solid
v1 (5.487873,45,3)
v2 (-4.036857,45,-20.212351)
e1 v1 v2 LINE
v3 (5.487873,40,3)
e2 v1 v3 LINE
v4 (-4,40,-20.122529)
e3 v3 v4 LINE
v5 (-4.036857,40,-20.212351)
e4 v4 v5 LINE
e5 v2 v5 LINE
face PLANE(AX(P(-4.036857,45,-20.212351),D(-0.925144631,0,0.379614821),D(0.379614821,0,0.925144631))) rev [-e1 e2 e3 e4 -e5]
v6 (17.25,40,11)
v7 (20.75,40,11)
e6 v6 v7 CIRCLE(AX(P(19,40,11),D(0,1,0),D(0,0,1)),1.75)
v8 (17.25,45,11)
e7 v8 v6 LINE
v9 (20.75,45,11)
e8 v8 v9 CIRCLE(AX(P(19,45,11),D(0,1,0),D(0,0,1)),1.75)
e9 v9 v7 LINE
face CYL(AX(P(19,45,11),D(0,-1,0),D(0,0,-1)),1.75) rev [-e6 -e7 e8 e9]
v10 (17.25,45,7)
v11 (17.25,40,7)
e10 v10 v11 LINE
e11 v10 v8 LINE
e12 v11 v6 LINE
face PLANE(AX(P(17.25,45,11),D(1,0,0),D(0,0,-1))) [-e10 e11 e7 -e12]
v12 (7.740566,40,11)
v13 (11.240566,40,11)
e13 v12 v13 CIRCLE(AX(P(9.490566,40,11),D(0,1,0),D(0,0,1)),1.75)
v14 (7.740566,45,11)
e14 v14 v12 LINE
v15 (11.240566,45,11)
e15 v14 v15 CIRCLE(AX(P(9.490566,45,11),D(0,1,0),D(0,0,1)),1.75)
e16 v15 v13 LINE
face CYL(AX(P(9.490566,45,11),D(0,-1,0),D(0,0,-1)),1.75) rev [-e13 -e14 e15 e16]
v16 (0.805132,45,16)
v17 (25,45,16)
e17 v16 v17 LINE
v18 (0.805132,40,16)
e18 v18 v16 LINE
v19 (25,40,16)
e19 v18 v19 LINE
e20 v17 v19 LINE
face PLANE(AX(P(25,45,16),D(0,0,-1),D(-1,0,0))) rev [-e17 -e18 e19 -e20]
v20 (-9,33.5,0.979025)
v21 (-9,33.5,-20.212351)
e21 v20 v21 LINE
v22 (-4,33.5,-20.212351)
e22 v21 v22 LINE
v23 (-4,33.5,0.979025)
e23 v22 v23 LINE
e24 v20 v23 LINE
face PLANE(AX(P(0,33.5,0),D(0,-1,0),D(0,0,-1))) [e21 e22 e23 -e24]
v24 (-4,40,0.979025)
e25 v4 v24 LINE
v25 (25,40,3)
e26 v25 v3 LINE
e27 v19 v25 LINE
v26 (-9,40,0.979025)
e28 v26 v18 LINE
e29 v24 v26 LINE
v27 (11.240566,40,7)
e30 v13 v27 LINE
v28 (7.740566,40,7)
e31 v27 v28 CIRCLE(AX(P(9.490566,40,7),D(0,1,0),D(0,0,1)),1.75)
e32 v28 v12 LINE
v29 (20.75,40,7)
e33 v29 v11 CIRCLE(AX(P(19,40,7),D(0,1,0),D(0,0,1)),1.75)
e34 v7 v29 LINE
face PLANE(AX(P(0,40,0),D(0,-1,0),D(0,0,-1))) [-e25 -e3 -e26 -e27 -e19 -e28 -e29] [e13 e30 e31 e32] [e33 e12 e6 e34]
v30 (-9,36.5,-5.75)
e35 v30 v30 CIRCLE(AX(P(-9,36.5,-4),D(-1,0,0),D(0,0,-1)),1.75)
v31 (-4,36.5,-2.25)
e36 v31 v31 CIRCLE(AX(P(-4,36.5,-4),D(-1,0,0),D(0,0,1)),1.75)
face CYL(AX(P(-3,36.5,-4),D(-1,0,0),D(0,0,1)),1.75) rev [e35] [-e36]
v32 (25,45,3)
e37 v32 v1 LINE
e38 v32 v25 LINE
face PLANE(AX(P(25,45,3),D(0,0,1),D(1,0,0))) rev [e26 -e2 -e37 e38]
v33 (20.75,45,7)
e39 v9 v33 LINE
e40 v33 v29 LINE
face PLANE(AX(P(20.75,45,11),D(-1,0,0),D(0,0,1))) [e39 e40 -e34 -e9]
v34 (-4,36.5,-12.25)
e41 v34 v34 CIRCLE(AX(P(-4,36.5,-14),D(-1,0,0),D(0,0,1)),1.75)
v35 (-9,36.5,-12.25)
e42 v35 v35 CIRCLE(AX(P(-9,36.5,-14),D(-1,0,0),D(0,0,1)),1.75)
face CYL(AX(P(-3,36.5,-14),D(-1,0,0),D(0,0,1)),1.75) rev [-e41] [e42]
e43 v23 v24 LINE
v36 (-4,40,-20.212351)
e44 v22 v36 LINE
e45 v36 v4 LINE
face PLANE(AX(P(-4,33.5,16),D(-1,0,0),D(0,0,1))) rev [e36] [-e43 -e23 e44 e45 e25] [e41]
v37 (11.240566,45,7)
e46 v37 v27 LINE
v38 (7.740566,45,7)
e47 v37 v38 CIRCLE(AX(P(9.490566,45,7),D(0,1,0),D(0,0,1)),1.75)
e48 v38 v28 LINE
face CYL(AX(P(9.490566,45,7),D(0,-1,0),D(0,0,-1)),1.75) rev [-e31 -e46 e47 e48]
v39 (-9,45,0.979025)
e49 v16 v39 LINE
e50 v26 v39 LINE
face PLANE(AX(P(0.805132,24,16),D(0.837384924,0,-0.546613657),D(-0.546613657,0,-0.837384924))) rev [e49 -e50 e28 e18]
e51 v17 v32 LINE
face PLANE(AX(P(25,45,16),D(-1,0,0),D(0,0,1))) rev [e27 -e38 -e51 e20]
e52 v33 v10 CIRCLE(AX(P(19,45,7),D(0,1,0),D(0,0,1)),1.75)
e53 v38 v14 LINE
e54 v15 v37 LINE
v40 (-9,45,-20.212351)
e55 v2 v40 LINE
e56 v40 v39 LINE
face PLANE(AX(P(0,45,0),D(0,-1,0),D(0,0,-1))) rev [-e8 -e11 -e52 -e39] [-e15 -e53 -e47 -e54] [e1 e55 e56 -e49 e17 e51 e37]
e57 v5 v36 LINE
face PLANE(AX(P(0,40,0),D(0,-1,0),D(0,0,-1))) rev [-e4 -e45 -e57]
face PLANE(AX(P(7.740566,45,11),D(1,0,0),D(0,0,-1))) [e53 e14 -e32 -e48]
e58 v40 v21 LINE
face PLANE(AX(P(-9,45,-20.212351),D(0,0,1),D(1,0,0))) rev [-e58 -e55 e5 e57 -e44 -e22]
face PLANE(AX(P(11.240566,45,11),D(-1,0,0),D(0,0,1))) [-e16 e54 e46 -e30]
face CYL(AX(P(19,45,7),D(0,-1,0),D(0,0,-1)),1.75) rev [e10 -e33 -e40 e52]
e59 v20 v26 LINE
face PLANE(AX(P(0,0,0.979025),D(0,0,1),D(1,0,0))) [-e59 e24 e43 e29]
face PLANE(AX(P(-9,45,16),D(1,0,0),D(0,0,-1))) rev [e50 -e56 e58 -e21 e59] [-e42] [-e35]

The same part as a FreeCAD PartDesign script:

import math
import FreeCAD as App
import Part
import Sketcher
from FreeCAD import Vector
Q = App.Units.Quantity

doc = App.newDocument("Part")
params = doc.addObject("Spreadsheet::Sheet", "Params")
for row, (alias, value) in enumerate([
    ("sketch1_width", "34 mm"),
    ("sketch1_height", "13 mm"),
    ("sketch1_height2", "4 mm"),
    ("sketch1_radius", "1.75 mm"),
    ("pad1_length", "5 mm"),
    ("sketch2_width", "5 mm"),
    ("pad2_length", "6.5 mm"),
    ("sketch3_diameter", "3.5 mm"),
    ("pocket1_length", "6 mm"),
    ("pocket2_length", "21 mm"),
    ("sketch5_width", "5 mm"),
    ("sketch5_height", "6.5 mm"),
    ("pocket3_length", "21 mm"),
], start=1):
    params.set(f"A{row}", alias)
    params.set(f"B{row}", "=" + value)
    params.setAlias(f"B{row}", alias)

body = doc.addObject("PartDesign::Body", "Body")

# Sketch on XZ plane
sketch1 = body.newObject("Sketcher::SketchObject", "Sketch")
sketch1.AttachmentSupport = (doc.getObject("XZ_Plane"), [""])
sketch1.MapMode = "FlatFace"
sketch1.AttachmentOffset = App.Placement(Vector(0, 0, -40), App.Rotation())
sketch1.addGeometry([
    Part.LineSegment(Vector(-9, 16, 0), Vector(25, 16, 0)),  # 0
    Part.LineSegment(Vector(25, 16, 0), Vector(25, 3, 0)),  # 1
    Part.LineSegment(Vector(25, 3, 0), Vector(5.5, 3, 0)),  # 2
    Part.LineSegment(Vector(5.5, 3, 0), Vector(-4, -20.2, 0)),  # 3
    Part.LineSegment(Vector(-4, -20.2, 0), Vector(-9, -20.2, 0)),  # 4
    Part.LineSegment(Vector(-9, -20.2, 0), Vector(-9, 16, 0)),  # 5
    Part.LineSegment(Vector(17.2, 11, 0), Vector(17.2, 7, 0)),  # 6
    Part.ArcOfCircle(Part.Circle(Vector(19, 7, 0), Vector(0, 0, 1), 1.8), math.radians(180), math.radians(360)),  # 7
    Part.LineSegment(Vector(20.8, 7, 0), Vector(20.8, 11, 0)),  # 8
    Part.ArcOfCircle(Part.Circle(Vector(19, 11, 0), Vector(0, 0, 1), 1.8), math.radians(0), math.radians(180)),  # 9
    Part.LineSegment(Vector(7.7, 11, 0), Vector(7.7, 7, 0)),  # 10
    Part.ArcOfCircle(Part.Circle(Vector(9.5, 7, 0), Vector(0, 0, 1), 1.8), math.radians(180), math.radians(360)),  # 11
    Part.LineSegment(Vector(11.2, 7, 0), Vector(11.2, 11, 0)),  # 12
    Part.ArcOfCircle(Part.Circle(Vector(9.5, 11, 0), Vector(0, 0, 1), 1.8), math.radians(0), math.radians(180)),  # 13
], False)
sketch1.addConstraint([
    Sketcher.Constraint("Coincident", 0, 2, 1, 1),
    Sketcher.Constraint("Coincident", 1, 2, 2, 1),
    Sketcher.Constraint("Coincident", 2, 2, 3, 1),
    Sketcher.Constraint("Coincident", 3, 2, 4, 1),
    Sketcher.Constraint("Coincident", 4, 2, 5, 1),
    Sketcher.Constraint("Coincident", 5, 2, 0, 1),
    Sketcher.Constraint("Tangent", 6, 2, 7, 1),
    Sketcher.Constraint("Tangent", 7, 2, 8, 1),
    Sketcher.Constraint("Tangent", 8, 2, 9, 1),
    Sketcher.Constraint("Tangent", 9, 2, 6, 1),
    Sketcher.Constraint("Tangent", 10, 2, 11, 1),
    Sketcher.Constraint("Tangent", 11, 2, 12, 1),
    Sketcher.Constraint("Tangent", 12, 2, 13, 1),
    Sketcher.Constraint("Tangent", 13, 2, 10, 1),
    Sketcher.Constraint("Horizontal", 0),
    Sketcher.Constraint("Vertical", 1),
    Sketcher.Constraint("Horizontal", 2),
    Sketcher.Constraint("Horizontal", 4),
    Sketcher.Constraint("Vertical", 5),
    Sketcher.Constraint("Vertical", 6),
    Sketcher.Constraint("Vertical", 8),
    Sketcher.Constraint("Vertical", 10),
    Sketcher.Constraint("Vertical", 12),
    Sketcher.Constraint("Equal", 9, 11),
    Sketcher.Constraint("Horizontal", 7, 3, 11, 3),
    Sketcher.Constraint("Horizontal", 9, 3, 13, 3),
    Sketcher.Constraint("DistanceX", 0, 1, 0, 2, Q("34 mm")),
    Sketcher.Constraint("DistanceY", 1, 2, 1, 1, Q("13 mm")),
    Sketcher.Constraint("DistanceY", 6, 2, 6, 1, Q("4 mm")),
    Sketcher.Constraint("Radius", 7, Q("1.75 mm")),
    Sketcher.Constraint("DistanceX", -1, 1, 7, 3, Q("19 mm")),
    Sketcher.Constraint("DistanceY", -1, 1, 7, 3, Q("7 mm")),
    Sketcher.Constraint("DistanceX", -1, 1, 0, 2, Q("25 mm")),
    Sketcher.Constraint("DistanceY", -1, 1, 0, 2, Q("16 mm")),
    Sketcher.Constraint("DistanceY", 5, 1, 5, 2, Q("36.212351 mm")),
    Sketcher.Constraint("Distance", 3, Q("25.090511 mm")),
    Sketcher.Constraint("DistanceX", 2, 2, 2, 1, Q("19.512127 mm")),
    Sketcher.Constraint("DistanceX", -1, 1, 11, 3, Q("9.490566 mm")),
])
sketch1.setExpression("Constraints[26]", "Params.sketch1_width")
sketch1.setExpression("Constraints[27]", "Params.sketch1_height")
sketch1.setExpression("Constraints[28]", "Params.sketch1_height2")
sketch1.setExpression("Constraints[29]", "Params.sketch1_radius")
pad1 = body.newObject("PartDesign::Pad", "Pad")
pad1.Profile = sketch1
pad1.setExpression("Length", "Params.pad1_length")
pad1.Reversed = True

# Sketch on XZ plane
sketch2 = body.newObject("Sketcher::SketchObject", "Sketch001")
sketch2.AttachmentSupport = (doc.getObject("XZ_Plane"), [""])
sketch2.MapMode = "FlatFace"
sketch2.AttachmentOffset = App.Placement(Vector(0, 0, -40), App.Rotation())
sketch2.addGeometry([
    Part.LineSegment(Vector(-9, 16, 0), Vector(-9, -20, 0)),
    Part.LineSegment(Vector(-9, -20, 0), Vector(-4, -20, 0)),
    Part.LineSegment(Vector(-4, -20, 0), Vector(-4, 16, 0)),
    Part.LineSegment(Vector(-4, 16, 0), Vector(-9, 16, 0)),
], False)
sketch2.addConstraint([
    Sketcher.Constraint("Coincident", 0, 2, 1, 1),
    Sketcher.Constraint("Coincident", 1, 2, 2, 1),
    Sketcher.Constraint("Coincident", 2, 2, 3, 1),
    Sketcher.Constraint("Coincident", 3, 2, 0, 1),
    Sketcher.Constraint("Vertical", 0),
    Sketcher.Constraint("Horizontal", 1),
    Sketcher.Constraint("Vertical", 2),
    Sketcher.Constraint("Horizontal", 3),
    Sketcher.Constraint("DistanceX", 1, 1, 1, 2, Q("5 mm")),
    Sketcher.Constraint("DistanceX", 0, 2, -1, 1, Q("9 mm")),
    Sketcher.Constraint("DistanceY", -1, 1, 2, 2, Q("16 mm")),
    Sketcher.Constraint("DistanceY", 0, 2, 0, 1, Q("36.212351 mm")),
])
sketch2.setExpression("Constraints[8]", "Params.sketch2_width")
pad2 = body.newObject("PartDesign::Pad", "Pad001")
pad2.Profile = sketch2
pad2.setExpression("Length", "Params.pad2_length")

# Sketch on YZ plane
sketch3 = body.newObject("Sketcher::SketchObject", "Sketch002")
sketch3.AttachmentSupport = (doc.getObject("YZ_Plane"), [""])
sketch3.MapMode = "FlatFace"
sketch3.AttachmentOffset = App.Placement(Vector(0, 0, -9), App.Rotation())
sketch3.addGeometry([
    Part.Circle(Vector(36.5, -14, 0), Vector(0, 0, 1), 1.8),
    Part.Circle(Vector(36.5, -4, 0), Vector(0, 0, 1), 1.8),
], False)
sketch3.addConstraint([
    Sketcher.Constraint("Equal", 0, 1),
    Sketcher.Constraint("Vertical", 0, 3, 1, 3),
    Sketcher.Constraint("Diameter", 0, Q("3.5 mm")),
    Sketcher.Constraint("DistanceY", 0, 3, -1, 1, Q("14 mm")),
    Sketcher.Constraint("DistanceY", 1, 3, -1, 1, Q("4 mm")),
    Sketcher.Constraint("DistanceX", -1, 1, 0, 3, Q("36.5 mm")),
])
sketch3.setExpression("Constraints[2]", "Params.sketch3_diameter")
pocket1 = body.newObject("PartDesign::Pocket", "Pocket")
pocket1.Profile = sketch3
pocket1.setExpression("Length", "Params.pocket1_length")
pocket1.Reversed = True

# Sketch on XZ plane
sketch4 = body.newObject("Sketcher::SketchObject", "Sketch003")
sketch4.AttachmentSupport = (doc.getObject("XZ_Plane"), [""])
sketch4.MapMode = "FlatFace"
sketch4.AttachmentOffset = App.Placement(Vector(0, 0, -45), App.Rotation())
sketch4.addGeometry([
    Part.LineSegment(Vector(1, 16, 0), Vector(-9, 1, 0)),
    Part.LineSegment(Vector(-9, 1, 0), Vector(-9, 16, 0)),
    Part.LineSegment(Vector(-9, 16, 0), Vector(1, 16, 0)),
], False)
sketch4.addConstraint([
    Sketcher.Constraint("Coincident", 0, 2, 1, 1),
    Sketcher.Constraint("Coincident", 1, 2, 2, 1),
    Sketcher.Constraint("Coincident", 2, 2, 0, 1),
    Sketcher.Constraint("Vertical", 1),
    Sketcher.Constraint("Horizontal", 2),
    Sketcher.Constraint("DistanceX", 0, 2, -1, 1, Q("9 mm")),
    Sketcher.Constraint("DistanceY", -1, 1, 1, 2, Q("16 mm")),
    Sketcher.Constraint("DistanceX", 2, 1, 2, 2, Q("9.805132 mm")),
    Sketcher.Constraint("DistanceY", 1, 1, 1, 2, Q("15.020975 mm")),
])
pocket2 = body.newObject("PartDesign::Pocket", "Pocket001")
pocket2.Profile = sketch4
pocket2.setExpression("Length", "Params.pocket2_length")
pocket2.Reversed = True

# Sketch on XY plane
sketch5 = body.newObject("Sketcher::SketchObject", "Sketch004")
sketch5.AttachmentSupport = (doc.getObject("XY_Plane"), [""])
sketch5.MapMode = "FlatFace"
sketch5.AttachmentOffset = App.Placement(Vector(0, 0, 0.979025), App.Rotation())
sketch5.addGeometry([
    Part.LineSegment(Vector(-9, 40, 0), Vector(-9, 34, 0)),
    Part.LineSegment(Vector(-9, 34, 0), Vector(-4, 34, 0)),
    Part.LineSegment(Vector(-4, 34, 0), Vector(-4, 40, 0)),
    Part.LineSegment(Vector(-4, 40, 0), Vector(-9, 40, 0)),
], False)
sketch5.addConstraint([
    Sketcher.Constraint("Coincident", 0, 2, 1, 1),
    Sketcher.Constraint("Coincident", 1, 2, 2, 1),
    Sketcher.Constraint("Coincident", 2, 2, 3, 1),
    Sketcher.Constraint("Coincident", 3, 2, 0, 1),
    Sketcher.Constraint("Vertical", 0),
    Sketcher.Constraint("Horizontal", 1),
    Sketcher.Constraint("Vertical", 2),
    Sketcher.Constraint("Horizontal", 3),
    Sketcher.Constraint("DistanceX", 1, 1, 1, 2, Q("5 mm")),
    Sketcher.Constraint("DistanceY", 0, 2, 0, 1, Q("6.5 mm")),
    Sketcher.Constraint("DistanceX", 0, 2, -1, 1, Q("9 mm")),
    Sketcher.Constraint("DistanceY", -1, 1, 2, 2, Q("40 mm")),
])
sketch5.setExpression("Constraints[8]", "Params.sketch5_width")
sketch5.setExpression("Constraints[9]", "Params.sketch5_height")
pocket3 = body.newObject("PartDesign::Pocket", "Pocket002")
pocket3.Profile = sketch5
pocket3.setExpression("Length", "Params.pocket3_length")
pocket3.Reversed = True

doc.recompute()
